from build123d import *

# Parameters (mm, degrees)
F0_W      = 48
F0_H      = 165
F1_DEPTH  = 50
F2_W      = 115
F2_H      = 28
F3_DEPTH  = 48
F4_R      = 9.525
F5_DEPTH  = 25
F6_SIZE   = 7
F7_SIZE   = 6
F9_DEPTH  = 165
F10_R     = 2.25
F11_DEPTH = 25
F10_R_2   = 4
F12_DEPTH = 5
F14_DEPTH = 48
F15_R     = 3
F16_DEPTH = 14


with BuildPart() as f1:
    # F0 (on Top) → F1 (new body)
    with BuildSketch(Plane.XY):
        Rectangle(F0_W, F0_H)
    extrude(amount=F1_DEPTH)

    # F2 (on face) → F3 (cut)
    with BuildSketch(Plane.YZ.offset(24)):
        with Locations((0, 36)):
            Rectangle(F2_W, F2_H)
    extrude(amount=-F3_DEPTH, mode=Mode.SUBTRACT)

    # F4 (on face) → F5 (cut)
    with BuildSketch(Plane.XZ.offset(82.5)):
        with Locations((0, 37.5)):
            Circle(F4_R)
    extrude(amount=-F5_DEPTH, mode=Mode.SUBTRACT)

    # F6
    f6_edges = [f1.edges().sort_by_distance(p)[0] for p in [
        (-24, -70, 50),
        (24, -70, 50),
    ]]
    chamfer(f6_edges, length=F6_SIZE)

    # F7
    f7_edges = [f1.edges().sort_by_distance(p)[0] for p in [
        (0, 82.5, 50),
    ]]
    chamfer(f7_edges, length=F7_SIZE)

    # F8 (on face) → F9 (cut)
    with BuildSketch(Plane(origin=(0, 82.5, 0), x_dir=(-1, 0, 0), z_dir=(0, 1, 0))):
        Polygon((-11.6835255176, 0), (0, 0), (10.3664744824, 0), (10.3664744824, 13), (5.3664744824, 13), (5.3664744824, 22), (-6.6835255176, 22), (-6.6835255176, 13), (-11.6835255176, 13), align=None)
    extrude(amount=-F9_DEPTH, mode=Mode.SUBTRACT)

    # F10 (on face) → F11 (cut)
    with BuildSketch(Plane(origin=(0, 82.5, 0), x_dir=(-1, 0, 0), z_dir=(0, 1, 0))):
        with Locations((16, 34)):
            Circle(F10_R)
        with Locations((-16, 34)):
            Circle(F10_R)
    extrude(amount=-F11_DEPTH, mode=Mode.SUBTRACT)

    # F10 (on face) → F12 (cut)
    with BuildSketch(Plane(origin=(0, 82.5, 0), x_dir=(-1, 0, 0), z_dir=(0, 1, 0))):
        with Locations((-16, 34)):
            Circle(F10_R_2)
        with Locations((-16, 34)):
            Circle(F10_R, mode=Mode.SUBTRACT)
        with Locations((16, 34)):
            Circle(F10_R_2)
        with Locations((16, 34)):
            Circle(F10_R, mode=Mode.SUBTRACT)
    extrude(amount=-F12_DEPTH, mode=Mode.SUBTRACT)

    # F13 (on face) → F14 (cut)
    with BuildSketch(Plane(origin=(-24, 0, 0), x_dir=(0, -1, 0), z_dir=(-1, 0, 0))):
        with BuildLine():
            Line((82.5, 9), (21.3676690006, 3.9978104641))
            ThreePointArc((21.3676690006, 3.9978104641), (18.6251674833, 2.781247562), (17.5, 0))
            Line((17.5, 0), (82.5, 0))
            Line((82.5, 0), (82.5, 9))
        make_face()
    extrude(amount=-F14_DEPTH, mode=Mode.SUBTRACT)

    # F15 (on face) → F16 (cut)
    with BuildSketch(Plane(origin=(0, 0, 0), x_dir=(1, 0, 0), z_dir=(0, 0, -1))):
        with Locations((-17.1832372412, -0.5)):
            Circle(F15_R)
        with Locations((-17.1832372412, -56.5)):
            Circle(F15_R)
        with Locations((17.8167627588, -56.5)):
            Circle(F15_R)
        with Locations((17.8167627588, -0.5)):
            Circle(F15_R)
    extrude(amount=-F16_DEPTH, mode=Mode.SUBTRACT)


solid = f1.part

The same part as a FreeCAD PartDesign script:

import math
import FreeCAD as App
import Part
import Sketcher
from FreeCAD import Vector
Q = App.Units.Quantity


def edges_at(feature, points):
    """Names of the edges that pass closest to the given points."""
    edges = feature.Shape.Edges
    near = lambda p: min(range(len(edges)), key=lambda i: edges[i].distToShape(Part.Vertex(*p))[0])
    return sorted({f"Edge{near(p) + 1}" for p in points})

doc = App.newDocument("Part")
body = doc.addObject("PartDesign::Body", "Body")

# Sketch on XY plane
sketch1 = doc.addObject("Sketcher::SketchObject", "Sketch")
body.addObject(sketch1)
sketch1.AttachmentSupport = (doc.XY_Plane, [""])
sketch1.MapMode = "FlatFace"
sketch1.addGeometry(Part.LineSegment(Vector(-24, 82, 0), Vector(-24, -82, 0)), False)
sketch1.addGeometry(Part.LineSegment(Vector(-24, -82, 0), Vector(24, -82, 0)), False)
sketch1.addGeometry(Part.LineSegment(Vector(24, -82, 0), Vector(24, 82, 0)), False)
sketch1.addGeometry(Part.LineSegment(Vector(24, 82, 0), Vector(-24, 82, 0)), False)
sketch1.addConstraint(Sketcher.Constraint("Coincident", 0, 2, 1, 1))
sketch1.addConstraint(Sketcher.Constraint("Coincident", 1, 2, 2, 1))
sketch1.addConstraint(Sketcher.Constraint("Coincident", 2, 2, 3, 1))
sketch1.addConstraint(Sketcher.Constraint("Coincident", 3, 2, 0, 1))
sketch1.addConstraint(Sketcher.Constraint("Vertical", 0))
sketch1.addConstraint(Sketcher.Constraint("Horizontal", 1))
sketch1.addConstraint(Sketcher.Constraint("Vertical", 2))
sketch1.addConstraint(Sketcher.Constraint("Horizontal", 3))
sketch1.addConstraint(Sketcher.Constraint("Symmetric", 0, 2, 2, 2, -1, 1))
sketch1.addConstraint(Sketcher.Constraint("DistanceX", 1, 1, 1, 2, Q("48 mm")))
sketch1.addConstraint(Sketcher.Constraint("DistanceY", 0, 2, 0, 1, Q("165 mm")))
pad1 = doc.addObject("PartDesign::Pad", "Pad")
body.addObject(pad1)
pad1.Profile = sketch1
pad1.Length = 50

# Sketch on YZ plane
sketch2 = doc.addObject("Sketcher::SketchObject", "Sketch001")
body.addObject(sketch2)
sketch2.AttachmentSupport = (doc.YZ_Plane, [""])
sketch2.MapMode = "FlatFace"
sketch2.AttachmentOffset = App.Placement(Vector(0, 0, 24), App.Rotation())
sketch2.addGeometry(Part.LineSegment(Vector(-58, 50, 0), Vector(-58, 22, 0)), False)
sketch2.addGeometry(Part.LineSegment(Vector(-58, 22, 0), Vector(58, 22, 0)), False)
sketch2.addGeometry(Part.LineSegment(Vector(58, 22, 0), Vector(58, 50, 0)), False)
sketch2.addGeometry(Part.LineSegment(Vector(58, 50, 0), Vector(-58, 50, 0)), False)
sketch2.addConstraint(Sketcher.Constraint("Coincident", 0, 2, 1, 1))
sketch2.addConstraint(Sketcher.Constraint("Coincident", 1, 2, 2, 1))
sketch2.addConstraint(Sketcher.Constraint("Coincident", 2, 2, 3, 1))
sketch2.addConstraint(Sketcher.Constraint("Coincident", 3, 2, 0, 1))
sketch2.addConstraint(Sketcher.Constraint("Vertical", 0))
sketch2.addConstraint(Sketcher.Constraint("Horizontal", 1))
sketch2.addConstraint(Sketcher.Constraint("Vertical", 2))
sketch2.addConstraint(Sketcher.Constraint("Horizontal", 3))
sketch2.addConstraint(Sketcher.Constraint("DistanceX", 1, 1, 1, 2, Q("115 mm")))
sketch2.addConstraint(Sketcher.Constraint("DistanceY", 0, 2, 0, 1, Q("28 mm")))
sketch2.addConstraint(Sketcher.Constraint("DistanceY", -1, 1, 0, 2, Q("22 mm")))
sketch2.addConstraint(Sketcher.Constraint("DistanceX", 0, 2, -1, 1, Q("57.5 mm")))
pocket1 = doc.addObject("PartDesign::Pocket", "Pocket")
body.addObject(pocket1)
pocket1.Profile = sketch2
pocket1.Length = 48

# Sketch on XZ plane
sketch3 = doc.addObject("Sketcher::SketchObject", "Sketch002")
body.addObject(sketch3)
sketch3.AttachmentSupport = (doc.XZ_Plane, [""])
sketch3.MapMode = "FlatFace"
sketch3.AttachmentOffset = App.Placement(Vector(0, 0, 82.5), App.Rotation())
sketch3.addGeometry(Part.Circle(Vector(0, 38, 0), Vector(0, 0, 1), 10), False)
sketch3.addConstraint(Sketcher.Constraint("PointOnObject", 0, 3, -2))
sketch3.addConstraint(Sketcher.Constraint("Diameter", 0, Q("19.05 mm")))
sketch3.addConstraint(Sketcher.Constraint("DistanceY", -1, 1, 0, 3, Q("37.5 mm")))
pocket2 = doc.addObject("PartDesign::Pocket", "Pocket001")
body.addObject(pocket2)
pocket2.Profile = sketch3
pocket2.Length = 25
doc.recompute()

chamfer = doc.addObject("PartDesign::Chamfer", "Chamfer")
body.addObject(chamfer)
chamfer.Base = (pocket2, edges_at(pocket2, [(-24, -70, 50), (24, -70, 50)]))
chamfer.Size = 7
doc.recompute()

chamfer2 = doc.addObject("PartDesign::Chamfer", "Chamfer001")
body.addObject(chamfer2)
chamfer2.Base = (chamfer, edges_at(chamfer, [(0, 82.5, 50)]))
chamfer2.Size = 6

# Sketch on XZ plane
sketch4 = doc.addObject("Sketcher::SketchObject", "Sketch003")
body.addObject(sketch4)
sketch4.AttachmentSupport = (doc.XZ_Plane, [""])
sketch4.MapMode = "FlatFace"
sketch4.AttachmentOffset = App.Placement(Vector(0, 0, -82.5), App.Rotation())
sketch4.addGeometry(Part.LineSegment(Vector(11.7, 0, 0), Vector(-10.4, 0, 0)), False)
sketch4.addGeometry(Part.LineSegment(Vector(-10.4, 0, 0), Vector(-10.4, 13, 0)), False)
sketch4.addGeometry(Part.LineSegment(Vector(-10.4, 13, 0), Vector(-5.4, 13, 0)), False)
sketch4.addGeometry(Part.LineSegment(Vector(-5.4, 13, 0), Vector(-5.4, 22, 0)), False)
sketch4.addGeometry(Part.LineSegment(Vector(-5.4, 22, 0), Vector(6.7, 22, 0)), False)
sketch4.addGeometry(Part.LineSegment(Vector(6.7, 22, 0), Vector(6.7, 13, 0)), False)
sketch4.addGeometry(Part.LineSegment(Vector(6.7, 13, 0), Vector(11.7, 13, 0)), False)
sketch4.addGeometry(Part.LineSegment(Vector(11.7, 13, 0), Vector(11.7, 0, 0)), False)
sketch4.addConstraint(Sketcher.Constraint("Coincident", 0, 2, 1, 1))
sketch4.addConstraint(Sketcher.Constraint("Coincident", 1, 2, 2, 1))
sketch4.addConstraint(Sketcher.Constraint("Coincident", 2, 2, 3, 1))
sketch4.addConstraint(Sketcher.Constraint("Coincident", 3, 2, 4, 1))
sketch4.addConstraint(Sketcher.Constraint("Coincident", 4, 2, 5, 1))
sketch4.addConstraint(Sketcher.Constraint("Coincident", 5, 2, 6, 1))
sketch4.addConstraint(Sketcher.Constraint("Coincident", 6, 2, 7, 1))
sketch4.addConstraint(Sketcher.Constraint("Coincident", 7, 2, 0, 1))
sketch4.addConstraint(Sketcher.Constraint("Horizontal", 0))
sketch4.addConstraint(Sketcher.Constraint("Vertical", 1))
sketch4.addConstraint(Sketcher.Constraint("Horizontal", 2))
sketch4.addConstraint(Sketcher.Constraint("Vertical", 3))
sketch4.addConstraint(Sketcher.Constraint("Horizontal", 4))
sketch4.addConstraint(Sketcher.Constraint("Vertical", 5))
sketch4.addConstraint(Sketcher.Constraint("Horizontal", 6))
sketch4.addConstraint(Sketcher.Constraint("Vertical", 7))
sketch4.addConstraint(Sketcher.Constraint("PointOnObject", 0, 2, -1))
sketch4.addConstraint(Sketcher.Constraint("Horizontal", 2, 2, 5, 2))
sketch4.addConstraint(Sketcher.Constraint("Equal", 2, 6))
sketch4.addConstraint(Sketcher.Constraint("DistanceX", 2, 1, 2, 2, Q("5 mm")))
sketch4.addConstraint(Sketcher.Constraint("DistanceY", 1, 1, 1, 2, Q("13 mm")))
sketch4.addConstraint(Sketcher.Constraint("DistanceY", 3, 1, 3, 2, Q("9 mm")))
sketch4.addConstraint(Sketcher.Constraint("DistanceX", 0, 2, 0, 1, Q("22.05 mm")))
sketch4.addConstraint(Sketcher.Constraint("DistanceX", 0, 2, -1, 1, Q("10.366474 mm")))
pocket3 = doc.addObject("PartDesign::Pocket", "Pocket002")
body.addObject(pocket3)
pocket3.Profile = sketch4
pocket3.Length = 165
pocket3.Reversed = True

# Sketch on XZ plane
sketch5 = doc.addObject("Sketcher::SketchObject", "Sketch004")
body.addObject(sketch5)
sketch5.AttachmentSupport = (doc.XZ_Plane, [""])
sketch5.MapMode = "FlatFace"
sketch5.AttachmentOffset = App.Placement(Vector(0, 0, -82.5), App.Rotation())
sketch5.addGeometry(Part.Circle(Vector(-16, 34, 0), Vector(0, 0, 1), 2.2), False)
sketch5.addGeometry(Part.Circle(Vector(16, 34, 0), Vector(0, 0, 1), 2.2), False)
sketch5.addConstraint(Sketcher.Constraint("Equal", 0, 1))
sketch5.addConstraint(Sketcher.Constraint("Symmetric", 0, 3, 1, 3, -2))
sketch5.addConstraint(Sketcher.Constraint("Diameter", 0, Q("4.5 mm")))
sketch5.addConstraint(Sketcher.Constraint("DistanceX", 0, 3, -1, 1, Q("16 mm")))
sketch5.addConstraint(Sketcher.Constraint("DistanceY", -1, 1, 0, 3, Q("34 mm")))
pocket4 = doc.addObject("PartDesign::Pocket", "Pocket003")
body.addObject(pocket4)
pocket4.Profile = sketch5
pocket4.Length = 25
pocket4.Reversed = True

# Sketch on XZ plane
sketch6 = doc.addObject("Sketcher::SketchObject", "Sketch005")
body.addObject(sketch6)
sketch6.AttachmentSupport = (doc.XZ_Plane, [""])
sketch6.MapMode = "FlatFace"
sketch6.AttachmentOffset = App.Placement(Vector(0, 0, -82.5), App.Rotation())
sketch6.addGeometry(Part.Circle(Vector(16, 34, 0), Vector(0, 0, 1), 4), False)
sketch6.addGeometry(Part.Circle(Vector(16, 34, 0), Vector(0, 0, 1), 2.2), False)
sketch6.addGeometry(Part.Circle(Vector(-16, 34, 0), Vector(0, 0, 1), 4), False)
sketch6.addGeometry(Part.Circle(Vector(-16, 34, 0), Vector(0, 0, 1), 2.2), False)
sketch6.addConstraint(Sketcher.Constraint("Coincident", 1, 3, 0, 3))
sketch6.addConstraint(Sketcher.Constraint("Coincident", 3, 3, 2, 3))
sketch6.addConstraint(Sketcher.Constraint("Equal", 0, 2))
sketch6.addConstraint(Sketcher.Constraint("Equal", 1, 3))
sketch6.addConstraint(Sketcher.Constraint("Symmetric", 0, 3, 2, 3, -2))
sketch6.addConstraint(Sketcher.Constraint("Diameter", 0, Q("8 mm")))
sketch6.addConstraint(Sketcher.Constraint("Diameter", 1, Q("4.5 mm")))
sketch6.addConstraint(Sketcher.Constraint("DistanceX", -1, 1, 0, 3, Q("16 mm")))
sketch6.addConstraint(Sketcher.Constraint("DistanceY", -1, 1, 0, 3, Q("34 mm")))
pocket5 = doc.addObject("PartDesign::Pocket", "Pocket004")
body.addObject(pocket5)
pocket5.Profile = sketch6
pocket5.Length = 5
pocket5.Reversed = True

# Sketch on YZ plane
sketch7 = doc.addObject("Sketcher::SketchObject", "Sketch006")
body.addObject(sketch7)
sketch7.AttachmentSupport = (doc.YZ_Plane, [""])
sketch7.MapMode = "FlatFace"
sketch7.AttachmentOffset = App.Placement(Vector(0, 0, -24), App.Rotation())
sketch7.addGeometry(Part.LineSegment(Vector(-82.5, 9, 0), Vector(-21.4, 4, 0)), False)
sketch7.addGeometry(Part.ArcOfCircle(Part.Circle(Vector(-21.5, 0, 0), Vector(0, 0, 1), 4), math.radians(0), math.radians(88)), False)
sketch7.addGeometry(Part.LineSegment(Vector(-17.5, 0, 0), Vector(-82.5, 0, 0)), False)
sketch7.addGeometry(Part.LineSegment(Vector(-82.5, 0, 0), Vector(-82.5, 9, 0)), False)
sketch7.addConstraint(Sketcher.Constraint("Coincident", 0, 2, 1, 2))
sketch7.addConstraint(Sketcher.Constraint("Coincident", 1, 1, 2, 1))
sketch7.addConstraint(Sketcher.Constraint("Coincident", 2, 2, 3, 1))
sketch7.addConstraint(Sketcher.Constraint("Coincident", 3, 2, 0, 1))
sketch7.addConstraint(Sketcher.Constraint("Horizontal", 2))
sketch7.addConstraint(Sketcher.Constraint("Vertical", 3))
sketch7.addConstraint(Sketcher.Constraint("PointOnObject", 1, 3, -1))
sketch7.addConstraint(Sketcher.Constraint("PointOnObject", 1, 1, -1))
sketch7.addConstraint(Sketcher.Constraint("Radius", 1, Q("4 mm")))
sketch7.addConstraint(Sketcher.Constraint("DistanceX", 2, 2, 2, 1, Q("65 mm")))
sketch7.addConstraint(Sketcher.Constraint("DistanceY", 3, 1, 3, 2, Q("9 mm")))
sketch7.addConstraint(Sketcher.Constraint("DistanceX", 1, 3, -1, 1, Q("21.5 mm")))
sketch7.addConstraint(Sketcher.Constraint("DistanceX", 0, 2, -1, 1, Q("21.367669 mm")))
pocket6 = doc.addObject("PartDesign::Pocket", "Pocket005")
body.addObject(pocket6)
pocket6.Profile = sketch7
pocket6.Length = 48
pocket6.Reversed = True

# Sketch on XY plane
sketch8 = doc.addObject("Sketcher::SketchObject", "Sketch007")
body.addObject(sketch8)
sketch8.AttachmentSupport = (doc.XY_Plane, [""])
sketch8.MapMode = "FlatFace"
sketch8.addGeometry(Part.Circle(Vector(-17.2, 0.5, 0), Vector(0, 0, 1), 3), False)
sketch8.addGeometry(Part.Circle(Vector(-17.2, 56.5, 0), Vector(0, 0, 1), 3), False)
sketch8.addGeometry(Part.Circle(Vector(17.8, 56.5, 0), Vector(0, 0, 1), 3), False)
sketch8.addGeometry(Part.Circle(Vector(17.8, 0.5, 0), Vector(0, 0, 1), 3), False)
sketch8.addConstraint(Sketcher.Constraint("Equal", 0, 1))
sketch8.addConstraint(Sketcher.Constraint("Equal", 1, 2))
sketch8.addConstraint(Sketcher.Constraint("Equal", 2, 3))
sketch8.addConstraint(Sketcher.Constraint("Horizontal", 1, 3, 2, 3))
sketch8.addConstraint(Sketcher.Constraint("Horizontal", 0, 3, 3, 3))
sketch8.addConstraint(Sketcher.Constraint("Vertical", 0, 3, 1, 3))
sketch8.addConstraint(Sketcher.Constraint("Vertical", 2, 3, 3, 3))
sketch8.addConstraint(Sketcher.Constraint("Diameter", 0, Q("6 mm")))
sketch8.addConstraint(Sketcher.Constraint("DistanceY", 0, 3, 1, 3, Q("56 mm")))
sketch8.addConstraint(Sketcher.Constraint("DistanceX", 1, 3, 2, 3, Q("35 mm")))
sketch8.addConstraint(Sketcher.Constraint("DistanceY", -1, 1, 0, 3, Q("0.5 mm")))
sketch8.addConstraint(Sketcher.Constraint("DistanceX", 0, 3, -1, 1, Q("17.183237 mm")))
pocket7 = doc.addObject("PartDesign::Pocket", "Pocket006")
body.addObject(pocket7)
pocket7.Profile = sketch8
pocket7.Length = 14
pocket7.Reversed = True

doc.recompute()
